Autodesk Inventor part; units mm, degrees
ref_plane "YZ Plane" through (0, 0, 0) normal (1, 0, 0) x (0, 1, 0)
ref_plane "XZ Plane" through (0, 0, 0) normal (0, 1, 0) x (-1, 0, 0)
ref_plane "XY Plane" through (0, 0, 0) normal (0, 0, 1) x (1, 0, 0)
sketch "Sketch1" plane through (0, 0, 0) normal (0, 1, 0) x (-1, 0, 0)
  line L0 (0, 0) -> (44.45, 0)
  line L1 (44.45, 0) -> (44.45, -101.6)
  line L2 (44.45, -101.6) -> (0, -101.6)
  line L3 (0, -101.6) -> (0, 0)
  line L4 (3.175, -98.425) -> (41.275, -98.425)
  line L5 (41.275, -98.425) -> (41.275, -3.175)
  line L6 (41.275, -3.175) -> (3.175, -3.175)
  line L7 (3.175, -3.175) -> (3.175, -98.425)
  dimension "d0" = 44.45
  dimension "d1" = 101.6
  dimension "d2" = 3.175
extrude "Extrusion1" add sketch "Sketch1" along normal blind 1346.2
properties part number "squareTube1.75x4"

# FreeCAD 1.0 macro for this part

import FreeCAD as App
import Part
import Sketcher
from FreeCAD import Vector
Q = App.Units.Quantity


def add_polygon(sketch, points):
    """Adds a closed chain of lines whose ends are joined by coincident constraints."""
    first, n = sketch.GeometryCount, len(points)
    for a, b in zip(points, points[1:] + points[:1]):
        sketch.addGeometry(Part.LineSegment(App.Vector(*a, 0), App.Vector(*b, 0)), False)
    for i in range(n):
        sketch.addConstraint(Sketcher.Constraint("Coincident", first + i, 2, first + (i + 1) % n, 1))

doc = App.newDocument("Part")
body = doc.addObject("PartDesign::Body", "Body")

# Sketch on XZ plane
sketch1 = doc.addObject("Sketcher::SketchObject", "Sketch")
body.addObject(sketch1)
sketch1.AttachmentSupport = (doc.XZ_Plane, [""])
sketch1.MapMode = "FlatFace"
add_polygon(sketch1, [(-44, 0), (0, 0), (0, -102), (-44, -102)])  # lines 0-3
add_polygon(sketch1, [(-41, -98), (-3, -98), (-3, -3), (-41, -3)])  # lines 4-7
sketch1.addConstraint([
    Sketcher.Constraint("Horizontal", 0),
    Sketcher.Constraint("Vertical", 1),
    Sketcher.Constraint("Horizontal", 2),
    Sketcher.Constraint("Vertical", 3),
    Sketcher.Constraint("Horizontal", 4),
    Sketcher.Constraint("Vertical", 5),
    Sketcher.Constraint("Horizontal", 6),
    Sketcher.Constraint("Vertical", 7),
    Sketcher.Constraint("Coincident", 0, 2, -1, 1),
    Sketcher.Constraint("DistanceY", 1, 2, 1, 1, Q("4 in")),
    Sketcher.Constraint("DistanceX", 0, 1, 0, 2, Q("1.75 in")),
    Sketcher.Constraint("DistanceX", 4, 1, 4, 2, Q("1.5 in")),
    Sketcher.Constraint("DistanceX", 4, 2, -1, 1, Q("0.125 in")),
    Sketcher.Constraint("DistanceY", 5, 2, -1, 1, Q("0.125 in")),
    Sketcher.Constraint("DistanceY", 1, 2, 4, 2, Q("0.125 in")),
])
pad1 = doc.addObject("PartDesign::Pad", "Pad")
body.addObject(pad1)
pad1.Profile = sketch1
pad1.Length = Q("53 in")
pad1.Reversed = True

doc.recompute()
